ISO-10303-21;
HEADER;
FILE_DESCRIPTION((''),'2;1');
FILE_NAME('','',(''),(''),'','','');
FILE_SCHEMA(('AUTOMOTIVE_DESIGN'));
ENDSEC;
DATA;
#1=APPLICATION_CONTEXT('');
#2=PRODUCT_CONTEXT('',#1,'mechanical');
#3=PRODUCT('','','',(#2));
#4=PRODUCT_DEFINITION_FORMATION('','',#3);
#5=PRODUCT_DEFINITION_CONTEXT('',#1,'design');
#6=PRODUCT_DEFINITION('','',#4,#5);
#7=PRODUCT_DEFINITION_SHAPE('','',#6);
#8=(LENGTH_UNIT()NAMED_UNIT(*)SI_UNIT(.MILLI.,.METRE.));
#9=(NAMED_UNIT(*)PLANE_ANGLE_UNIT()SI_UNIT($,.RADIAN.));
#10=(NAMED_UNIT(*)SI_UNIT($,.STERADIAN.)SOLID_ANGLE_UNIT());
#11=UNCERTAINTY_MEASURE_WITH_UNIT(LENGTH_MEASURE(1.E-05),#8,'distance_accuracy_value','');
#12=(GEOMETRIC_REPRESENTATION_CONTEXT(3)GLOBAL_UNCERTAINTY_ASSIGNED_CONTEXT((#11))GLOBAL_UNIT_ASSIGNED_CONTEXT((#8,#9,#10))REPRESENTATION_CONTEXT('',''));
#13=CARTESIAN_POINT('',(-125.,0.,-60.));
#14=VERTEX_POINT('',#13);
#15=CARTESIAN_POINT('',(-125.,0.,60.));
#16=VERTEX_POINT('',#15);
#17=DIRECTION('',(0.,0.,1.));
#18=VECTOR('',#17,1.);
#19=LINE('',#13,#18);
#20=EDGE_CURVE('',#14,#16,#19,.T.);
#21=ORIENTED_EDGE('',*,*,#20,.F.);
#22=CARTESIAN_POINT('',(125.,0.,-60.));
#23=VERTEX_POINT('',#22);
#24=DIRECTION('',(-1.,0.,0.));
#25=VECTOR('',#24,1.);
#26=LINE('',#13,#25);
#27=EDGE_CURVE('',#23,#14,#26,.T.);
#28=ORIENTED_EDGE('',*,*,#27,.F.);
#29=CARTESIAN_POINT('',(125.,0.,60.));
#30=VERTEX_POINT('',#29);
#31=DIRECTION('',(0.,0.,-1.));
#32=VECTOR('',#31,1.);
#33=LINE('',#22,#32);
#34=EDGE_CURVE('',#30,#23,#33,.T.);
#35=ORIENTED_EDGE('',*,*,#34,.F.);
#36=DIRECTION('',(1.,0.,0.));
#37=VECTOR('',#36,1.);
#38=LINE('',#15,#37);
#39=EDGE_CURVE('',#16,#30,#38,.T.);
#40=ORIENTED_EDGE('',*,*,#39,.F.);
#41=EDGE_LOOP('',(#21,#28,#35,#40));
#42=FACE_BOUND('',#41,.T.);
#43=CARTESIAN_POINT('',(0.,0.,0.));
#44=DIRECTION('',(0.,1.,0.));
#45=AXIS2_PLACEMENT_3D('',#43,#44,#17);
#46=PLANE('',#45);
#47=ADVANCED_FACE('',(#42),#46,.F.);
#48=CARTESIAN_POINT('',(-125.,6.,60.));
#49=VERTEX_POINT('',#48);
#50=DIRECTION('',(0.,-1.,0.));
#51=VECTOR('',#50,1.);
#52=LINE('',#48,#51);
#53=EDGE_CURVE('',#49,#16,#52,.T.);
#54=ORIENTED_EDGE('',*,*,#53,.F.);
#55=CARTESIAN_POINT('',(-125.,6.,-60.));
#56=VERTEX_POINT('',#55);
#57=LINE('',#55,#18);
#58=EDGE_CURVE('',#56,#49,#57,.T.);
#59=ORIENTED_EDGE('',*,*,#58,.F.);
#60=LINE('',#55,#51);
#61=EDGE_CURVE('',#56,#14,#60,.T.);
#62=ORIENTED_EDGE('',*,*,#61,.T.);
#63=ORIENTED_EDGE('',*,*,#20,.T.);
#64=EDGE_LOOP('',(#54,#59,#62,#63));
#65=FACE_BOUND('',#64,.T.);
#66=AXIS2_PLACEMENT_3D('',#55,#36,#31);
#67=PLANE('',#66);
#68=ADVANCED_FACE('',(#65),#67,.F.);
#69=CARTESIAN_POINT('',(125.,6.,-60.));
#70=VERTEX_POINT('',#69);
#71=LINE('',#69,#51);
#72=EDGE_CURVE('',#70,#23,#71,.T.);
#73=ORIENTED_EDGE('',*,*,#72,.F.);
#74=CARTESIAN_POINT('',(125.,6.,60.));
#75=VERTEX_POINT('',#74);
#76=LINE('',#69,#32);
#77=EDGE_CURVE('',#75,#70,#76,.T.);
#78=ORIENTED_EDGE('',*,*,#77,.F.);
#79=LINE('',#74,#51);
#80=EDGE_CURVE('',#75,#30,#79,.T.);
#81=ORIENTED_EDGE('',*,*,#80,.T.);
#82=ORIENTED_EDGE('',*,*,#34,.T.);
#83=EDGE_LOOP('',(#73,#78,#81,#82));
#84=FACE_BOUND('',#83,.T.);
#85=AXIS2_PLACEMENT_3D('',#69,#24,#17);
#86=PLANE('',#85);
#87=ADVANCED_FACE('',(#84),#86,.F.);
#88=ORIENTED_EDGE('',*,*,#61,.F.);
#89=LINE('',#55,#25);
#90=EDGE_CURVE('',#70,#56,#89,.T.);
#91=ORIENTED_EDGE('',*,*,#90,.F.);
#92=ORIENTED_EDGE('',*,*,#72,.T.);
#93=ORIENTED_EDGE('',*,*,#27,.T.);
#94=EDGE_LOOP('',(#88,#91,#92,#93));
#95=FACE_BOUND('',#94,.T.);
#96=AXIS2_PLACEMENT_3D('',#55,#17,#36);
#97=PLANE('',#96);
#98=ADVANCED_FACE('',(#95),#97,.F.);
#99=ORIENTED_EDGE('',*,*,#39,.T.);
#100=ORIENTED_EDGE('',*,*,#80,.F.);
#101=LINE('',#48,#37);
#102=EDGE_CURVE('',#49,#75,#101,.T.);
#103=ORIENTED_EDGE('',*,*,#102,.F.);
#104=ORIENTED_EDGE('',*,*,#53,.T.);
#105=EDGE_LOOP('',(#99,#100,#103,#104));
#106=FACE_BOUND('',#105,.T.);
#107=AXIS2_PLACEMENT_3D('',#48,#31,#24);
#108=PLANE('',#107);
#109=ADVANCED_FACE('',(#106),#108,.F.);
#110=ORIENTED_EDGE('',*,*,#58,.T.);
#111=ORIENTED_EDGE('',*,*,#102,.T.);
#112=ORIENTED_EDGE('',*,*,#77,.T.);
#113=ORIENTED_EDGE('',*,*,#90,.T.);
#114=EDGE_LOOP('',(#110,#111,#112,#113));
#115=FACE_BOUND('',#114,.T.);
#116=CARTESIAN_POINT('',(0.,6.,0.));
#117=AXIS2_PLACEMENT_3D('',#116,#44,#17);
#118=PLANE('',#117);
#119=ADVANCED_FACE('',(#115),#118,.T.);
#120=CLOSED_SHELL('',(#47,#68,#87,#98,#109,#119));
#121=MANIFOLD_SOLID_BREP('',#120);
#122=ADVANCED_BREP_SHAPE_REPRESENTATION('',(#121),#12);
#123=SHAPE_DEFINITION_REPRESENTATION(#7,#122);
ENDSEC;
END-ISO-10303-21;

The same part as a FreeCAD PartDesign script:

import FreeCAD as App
import Part
import Sketcher
Q = App.Units.Quantity


def add_polygon(sketch, points):
    """Adds a closed chain of lines whose ends are joined by coincident constraints."""
    first, n = sketch.GeometryCount, len(points)
    for a, b in zip(points, points[1:] + points[:1]):
        sketch.addGeometry(Part.LineSegment(App.Vector(*a, 0), App.Vector(*b, 0)), False)
    for i in range(n):
        sketch.addConstraint(Sketcher.Constraint("Coincident", first + i, 2, first + (i + 1) % n, 1))

doc = App.newDocument("Part")
params = doc.addObject("Spreadsheet::Sheet", "Params")
for row, (alias, value) in enumerate([
    ("sketch1_width", "250 mm"),
    ("sketch1_height", "120 mm"),
    ("pad1_length", "6 mm"),
], start=1):
    params.set(f"A{row}", alias)
    params.set(f"B{row}", "=" + value)
    params.setAlias(f"B{row}", alias)

body = doc.addObject("PartDesign::Body", "Body")

sketch1 = body.newObject("Sketcher::SketchObject", "Sketch")
sketch1.AttachmentSupport = (doc.getObject("XZ_Plane"), [""])
sketch1.MapMode = "FlatFace"
add_polygon(sketch1, [(-125, -60), (-125, 60), (125, 60), (125, -60)])
sketch1.addConstraint([
    Sketcher.Constraint("Vertical", 0),
    Sketcher.Constraint("Horizontal", 1),
    Sketcher.Constraint("Vertical", 2),
    Sketcher.Constraint("Horizontal", 3),
    Sketcher.Constraint("Symmetric", 0, 2, 2, 2, -1, 1),
    Sketcher.Constraint("DistanceX", 1, 1, 1, 2, Q("250 mm")),
    Sketcher.Constraint("DistanceY", 0, 1, 0, 2, Q("120 mm")),
])
sketch1.setExpression("Constraints[9]", "Params.sketch1_width")
sketch1.setExpression("Constraints[10]", "Params.sketch1_height")
pad1 = body.newObject("PartDesign::Pad", "Pad")
pad1.Profile = sketch1
pad1.setExpression("Length", "Params.pad1_length")
pad1.Reversed = True

doc.recompute()
